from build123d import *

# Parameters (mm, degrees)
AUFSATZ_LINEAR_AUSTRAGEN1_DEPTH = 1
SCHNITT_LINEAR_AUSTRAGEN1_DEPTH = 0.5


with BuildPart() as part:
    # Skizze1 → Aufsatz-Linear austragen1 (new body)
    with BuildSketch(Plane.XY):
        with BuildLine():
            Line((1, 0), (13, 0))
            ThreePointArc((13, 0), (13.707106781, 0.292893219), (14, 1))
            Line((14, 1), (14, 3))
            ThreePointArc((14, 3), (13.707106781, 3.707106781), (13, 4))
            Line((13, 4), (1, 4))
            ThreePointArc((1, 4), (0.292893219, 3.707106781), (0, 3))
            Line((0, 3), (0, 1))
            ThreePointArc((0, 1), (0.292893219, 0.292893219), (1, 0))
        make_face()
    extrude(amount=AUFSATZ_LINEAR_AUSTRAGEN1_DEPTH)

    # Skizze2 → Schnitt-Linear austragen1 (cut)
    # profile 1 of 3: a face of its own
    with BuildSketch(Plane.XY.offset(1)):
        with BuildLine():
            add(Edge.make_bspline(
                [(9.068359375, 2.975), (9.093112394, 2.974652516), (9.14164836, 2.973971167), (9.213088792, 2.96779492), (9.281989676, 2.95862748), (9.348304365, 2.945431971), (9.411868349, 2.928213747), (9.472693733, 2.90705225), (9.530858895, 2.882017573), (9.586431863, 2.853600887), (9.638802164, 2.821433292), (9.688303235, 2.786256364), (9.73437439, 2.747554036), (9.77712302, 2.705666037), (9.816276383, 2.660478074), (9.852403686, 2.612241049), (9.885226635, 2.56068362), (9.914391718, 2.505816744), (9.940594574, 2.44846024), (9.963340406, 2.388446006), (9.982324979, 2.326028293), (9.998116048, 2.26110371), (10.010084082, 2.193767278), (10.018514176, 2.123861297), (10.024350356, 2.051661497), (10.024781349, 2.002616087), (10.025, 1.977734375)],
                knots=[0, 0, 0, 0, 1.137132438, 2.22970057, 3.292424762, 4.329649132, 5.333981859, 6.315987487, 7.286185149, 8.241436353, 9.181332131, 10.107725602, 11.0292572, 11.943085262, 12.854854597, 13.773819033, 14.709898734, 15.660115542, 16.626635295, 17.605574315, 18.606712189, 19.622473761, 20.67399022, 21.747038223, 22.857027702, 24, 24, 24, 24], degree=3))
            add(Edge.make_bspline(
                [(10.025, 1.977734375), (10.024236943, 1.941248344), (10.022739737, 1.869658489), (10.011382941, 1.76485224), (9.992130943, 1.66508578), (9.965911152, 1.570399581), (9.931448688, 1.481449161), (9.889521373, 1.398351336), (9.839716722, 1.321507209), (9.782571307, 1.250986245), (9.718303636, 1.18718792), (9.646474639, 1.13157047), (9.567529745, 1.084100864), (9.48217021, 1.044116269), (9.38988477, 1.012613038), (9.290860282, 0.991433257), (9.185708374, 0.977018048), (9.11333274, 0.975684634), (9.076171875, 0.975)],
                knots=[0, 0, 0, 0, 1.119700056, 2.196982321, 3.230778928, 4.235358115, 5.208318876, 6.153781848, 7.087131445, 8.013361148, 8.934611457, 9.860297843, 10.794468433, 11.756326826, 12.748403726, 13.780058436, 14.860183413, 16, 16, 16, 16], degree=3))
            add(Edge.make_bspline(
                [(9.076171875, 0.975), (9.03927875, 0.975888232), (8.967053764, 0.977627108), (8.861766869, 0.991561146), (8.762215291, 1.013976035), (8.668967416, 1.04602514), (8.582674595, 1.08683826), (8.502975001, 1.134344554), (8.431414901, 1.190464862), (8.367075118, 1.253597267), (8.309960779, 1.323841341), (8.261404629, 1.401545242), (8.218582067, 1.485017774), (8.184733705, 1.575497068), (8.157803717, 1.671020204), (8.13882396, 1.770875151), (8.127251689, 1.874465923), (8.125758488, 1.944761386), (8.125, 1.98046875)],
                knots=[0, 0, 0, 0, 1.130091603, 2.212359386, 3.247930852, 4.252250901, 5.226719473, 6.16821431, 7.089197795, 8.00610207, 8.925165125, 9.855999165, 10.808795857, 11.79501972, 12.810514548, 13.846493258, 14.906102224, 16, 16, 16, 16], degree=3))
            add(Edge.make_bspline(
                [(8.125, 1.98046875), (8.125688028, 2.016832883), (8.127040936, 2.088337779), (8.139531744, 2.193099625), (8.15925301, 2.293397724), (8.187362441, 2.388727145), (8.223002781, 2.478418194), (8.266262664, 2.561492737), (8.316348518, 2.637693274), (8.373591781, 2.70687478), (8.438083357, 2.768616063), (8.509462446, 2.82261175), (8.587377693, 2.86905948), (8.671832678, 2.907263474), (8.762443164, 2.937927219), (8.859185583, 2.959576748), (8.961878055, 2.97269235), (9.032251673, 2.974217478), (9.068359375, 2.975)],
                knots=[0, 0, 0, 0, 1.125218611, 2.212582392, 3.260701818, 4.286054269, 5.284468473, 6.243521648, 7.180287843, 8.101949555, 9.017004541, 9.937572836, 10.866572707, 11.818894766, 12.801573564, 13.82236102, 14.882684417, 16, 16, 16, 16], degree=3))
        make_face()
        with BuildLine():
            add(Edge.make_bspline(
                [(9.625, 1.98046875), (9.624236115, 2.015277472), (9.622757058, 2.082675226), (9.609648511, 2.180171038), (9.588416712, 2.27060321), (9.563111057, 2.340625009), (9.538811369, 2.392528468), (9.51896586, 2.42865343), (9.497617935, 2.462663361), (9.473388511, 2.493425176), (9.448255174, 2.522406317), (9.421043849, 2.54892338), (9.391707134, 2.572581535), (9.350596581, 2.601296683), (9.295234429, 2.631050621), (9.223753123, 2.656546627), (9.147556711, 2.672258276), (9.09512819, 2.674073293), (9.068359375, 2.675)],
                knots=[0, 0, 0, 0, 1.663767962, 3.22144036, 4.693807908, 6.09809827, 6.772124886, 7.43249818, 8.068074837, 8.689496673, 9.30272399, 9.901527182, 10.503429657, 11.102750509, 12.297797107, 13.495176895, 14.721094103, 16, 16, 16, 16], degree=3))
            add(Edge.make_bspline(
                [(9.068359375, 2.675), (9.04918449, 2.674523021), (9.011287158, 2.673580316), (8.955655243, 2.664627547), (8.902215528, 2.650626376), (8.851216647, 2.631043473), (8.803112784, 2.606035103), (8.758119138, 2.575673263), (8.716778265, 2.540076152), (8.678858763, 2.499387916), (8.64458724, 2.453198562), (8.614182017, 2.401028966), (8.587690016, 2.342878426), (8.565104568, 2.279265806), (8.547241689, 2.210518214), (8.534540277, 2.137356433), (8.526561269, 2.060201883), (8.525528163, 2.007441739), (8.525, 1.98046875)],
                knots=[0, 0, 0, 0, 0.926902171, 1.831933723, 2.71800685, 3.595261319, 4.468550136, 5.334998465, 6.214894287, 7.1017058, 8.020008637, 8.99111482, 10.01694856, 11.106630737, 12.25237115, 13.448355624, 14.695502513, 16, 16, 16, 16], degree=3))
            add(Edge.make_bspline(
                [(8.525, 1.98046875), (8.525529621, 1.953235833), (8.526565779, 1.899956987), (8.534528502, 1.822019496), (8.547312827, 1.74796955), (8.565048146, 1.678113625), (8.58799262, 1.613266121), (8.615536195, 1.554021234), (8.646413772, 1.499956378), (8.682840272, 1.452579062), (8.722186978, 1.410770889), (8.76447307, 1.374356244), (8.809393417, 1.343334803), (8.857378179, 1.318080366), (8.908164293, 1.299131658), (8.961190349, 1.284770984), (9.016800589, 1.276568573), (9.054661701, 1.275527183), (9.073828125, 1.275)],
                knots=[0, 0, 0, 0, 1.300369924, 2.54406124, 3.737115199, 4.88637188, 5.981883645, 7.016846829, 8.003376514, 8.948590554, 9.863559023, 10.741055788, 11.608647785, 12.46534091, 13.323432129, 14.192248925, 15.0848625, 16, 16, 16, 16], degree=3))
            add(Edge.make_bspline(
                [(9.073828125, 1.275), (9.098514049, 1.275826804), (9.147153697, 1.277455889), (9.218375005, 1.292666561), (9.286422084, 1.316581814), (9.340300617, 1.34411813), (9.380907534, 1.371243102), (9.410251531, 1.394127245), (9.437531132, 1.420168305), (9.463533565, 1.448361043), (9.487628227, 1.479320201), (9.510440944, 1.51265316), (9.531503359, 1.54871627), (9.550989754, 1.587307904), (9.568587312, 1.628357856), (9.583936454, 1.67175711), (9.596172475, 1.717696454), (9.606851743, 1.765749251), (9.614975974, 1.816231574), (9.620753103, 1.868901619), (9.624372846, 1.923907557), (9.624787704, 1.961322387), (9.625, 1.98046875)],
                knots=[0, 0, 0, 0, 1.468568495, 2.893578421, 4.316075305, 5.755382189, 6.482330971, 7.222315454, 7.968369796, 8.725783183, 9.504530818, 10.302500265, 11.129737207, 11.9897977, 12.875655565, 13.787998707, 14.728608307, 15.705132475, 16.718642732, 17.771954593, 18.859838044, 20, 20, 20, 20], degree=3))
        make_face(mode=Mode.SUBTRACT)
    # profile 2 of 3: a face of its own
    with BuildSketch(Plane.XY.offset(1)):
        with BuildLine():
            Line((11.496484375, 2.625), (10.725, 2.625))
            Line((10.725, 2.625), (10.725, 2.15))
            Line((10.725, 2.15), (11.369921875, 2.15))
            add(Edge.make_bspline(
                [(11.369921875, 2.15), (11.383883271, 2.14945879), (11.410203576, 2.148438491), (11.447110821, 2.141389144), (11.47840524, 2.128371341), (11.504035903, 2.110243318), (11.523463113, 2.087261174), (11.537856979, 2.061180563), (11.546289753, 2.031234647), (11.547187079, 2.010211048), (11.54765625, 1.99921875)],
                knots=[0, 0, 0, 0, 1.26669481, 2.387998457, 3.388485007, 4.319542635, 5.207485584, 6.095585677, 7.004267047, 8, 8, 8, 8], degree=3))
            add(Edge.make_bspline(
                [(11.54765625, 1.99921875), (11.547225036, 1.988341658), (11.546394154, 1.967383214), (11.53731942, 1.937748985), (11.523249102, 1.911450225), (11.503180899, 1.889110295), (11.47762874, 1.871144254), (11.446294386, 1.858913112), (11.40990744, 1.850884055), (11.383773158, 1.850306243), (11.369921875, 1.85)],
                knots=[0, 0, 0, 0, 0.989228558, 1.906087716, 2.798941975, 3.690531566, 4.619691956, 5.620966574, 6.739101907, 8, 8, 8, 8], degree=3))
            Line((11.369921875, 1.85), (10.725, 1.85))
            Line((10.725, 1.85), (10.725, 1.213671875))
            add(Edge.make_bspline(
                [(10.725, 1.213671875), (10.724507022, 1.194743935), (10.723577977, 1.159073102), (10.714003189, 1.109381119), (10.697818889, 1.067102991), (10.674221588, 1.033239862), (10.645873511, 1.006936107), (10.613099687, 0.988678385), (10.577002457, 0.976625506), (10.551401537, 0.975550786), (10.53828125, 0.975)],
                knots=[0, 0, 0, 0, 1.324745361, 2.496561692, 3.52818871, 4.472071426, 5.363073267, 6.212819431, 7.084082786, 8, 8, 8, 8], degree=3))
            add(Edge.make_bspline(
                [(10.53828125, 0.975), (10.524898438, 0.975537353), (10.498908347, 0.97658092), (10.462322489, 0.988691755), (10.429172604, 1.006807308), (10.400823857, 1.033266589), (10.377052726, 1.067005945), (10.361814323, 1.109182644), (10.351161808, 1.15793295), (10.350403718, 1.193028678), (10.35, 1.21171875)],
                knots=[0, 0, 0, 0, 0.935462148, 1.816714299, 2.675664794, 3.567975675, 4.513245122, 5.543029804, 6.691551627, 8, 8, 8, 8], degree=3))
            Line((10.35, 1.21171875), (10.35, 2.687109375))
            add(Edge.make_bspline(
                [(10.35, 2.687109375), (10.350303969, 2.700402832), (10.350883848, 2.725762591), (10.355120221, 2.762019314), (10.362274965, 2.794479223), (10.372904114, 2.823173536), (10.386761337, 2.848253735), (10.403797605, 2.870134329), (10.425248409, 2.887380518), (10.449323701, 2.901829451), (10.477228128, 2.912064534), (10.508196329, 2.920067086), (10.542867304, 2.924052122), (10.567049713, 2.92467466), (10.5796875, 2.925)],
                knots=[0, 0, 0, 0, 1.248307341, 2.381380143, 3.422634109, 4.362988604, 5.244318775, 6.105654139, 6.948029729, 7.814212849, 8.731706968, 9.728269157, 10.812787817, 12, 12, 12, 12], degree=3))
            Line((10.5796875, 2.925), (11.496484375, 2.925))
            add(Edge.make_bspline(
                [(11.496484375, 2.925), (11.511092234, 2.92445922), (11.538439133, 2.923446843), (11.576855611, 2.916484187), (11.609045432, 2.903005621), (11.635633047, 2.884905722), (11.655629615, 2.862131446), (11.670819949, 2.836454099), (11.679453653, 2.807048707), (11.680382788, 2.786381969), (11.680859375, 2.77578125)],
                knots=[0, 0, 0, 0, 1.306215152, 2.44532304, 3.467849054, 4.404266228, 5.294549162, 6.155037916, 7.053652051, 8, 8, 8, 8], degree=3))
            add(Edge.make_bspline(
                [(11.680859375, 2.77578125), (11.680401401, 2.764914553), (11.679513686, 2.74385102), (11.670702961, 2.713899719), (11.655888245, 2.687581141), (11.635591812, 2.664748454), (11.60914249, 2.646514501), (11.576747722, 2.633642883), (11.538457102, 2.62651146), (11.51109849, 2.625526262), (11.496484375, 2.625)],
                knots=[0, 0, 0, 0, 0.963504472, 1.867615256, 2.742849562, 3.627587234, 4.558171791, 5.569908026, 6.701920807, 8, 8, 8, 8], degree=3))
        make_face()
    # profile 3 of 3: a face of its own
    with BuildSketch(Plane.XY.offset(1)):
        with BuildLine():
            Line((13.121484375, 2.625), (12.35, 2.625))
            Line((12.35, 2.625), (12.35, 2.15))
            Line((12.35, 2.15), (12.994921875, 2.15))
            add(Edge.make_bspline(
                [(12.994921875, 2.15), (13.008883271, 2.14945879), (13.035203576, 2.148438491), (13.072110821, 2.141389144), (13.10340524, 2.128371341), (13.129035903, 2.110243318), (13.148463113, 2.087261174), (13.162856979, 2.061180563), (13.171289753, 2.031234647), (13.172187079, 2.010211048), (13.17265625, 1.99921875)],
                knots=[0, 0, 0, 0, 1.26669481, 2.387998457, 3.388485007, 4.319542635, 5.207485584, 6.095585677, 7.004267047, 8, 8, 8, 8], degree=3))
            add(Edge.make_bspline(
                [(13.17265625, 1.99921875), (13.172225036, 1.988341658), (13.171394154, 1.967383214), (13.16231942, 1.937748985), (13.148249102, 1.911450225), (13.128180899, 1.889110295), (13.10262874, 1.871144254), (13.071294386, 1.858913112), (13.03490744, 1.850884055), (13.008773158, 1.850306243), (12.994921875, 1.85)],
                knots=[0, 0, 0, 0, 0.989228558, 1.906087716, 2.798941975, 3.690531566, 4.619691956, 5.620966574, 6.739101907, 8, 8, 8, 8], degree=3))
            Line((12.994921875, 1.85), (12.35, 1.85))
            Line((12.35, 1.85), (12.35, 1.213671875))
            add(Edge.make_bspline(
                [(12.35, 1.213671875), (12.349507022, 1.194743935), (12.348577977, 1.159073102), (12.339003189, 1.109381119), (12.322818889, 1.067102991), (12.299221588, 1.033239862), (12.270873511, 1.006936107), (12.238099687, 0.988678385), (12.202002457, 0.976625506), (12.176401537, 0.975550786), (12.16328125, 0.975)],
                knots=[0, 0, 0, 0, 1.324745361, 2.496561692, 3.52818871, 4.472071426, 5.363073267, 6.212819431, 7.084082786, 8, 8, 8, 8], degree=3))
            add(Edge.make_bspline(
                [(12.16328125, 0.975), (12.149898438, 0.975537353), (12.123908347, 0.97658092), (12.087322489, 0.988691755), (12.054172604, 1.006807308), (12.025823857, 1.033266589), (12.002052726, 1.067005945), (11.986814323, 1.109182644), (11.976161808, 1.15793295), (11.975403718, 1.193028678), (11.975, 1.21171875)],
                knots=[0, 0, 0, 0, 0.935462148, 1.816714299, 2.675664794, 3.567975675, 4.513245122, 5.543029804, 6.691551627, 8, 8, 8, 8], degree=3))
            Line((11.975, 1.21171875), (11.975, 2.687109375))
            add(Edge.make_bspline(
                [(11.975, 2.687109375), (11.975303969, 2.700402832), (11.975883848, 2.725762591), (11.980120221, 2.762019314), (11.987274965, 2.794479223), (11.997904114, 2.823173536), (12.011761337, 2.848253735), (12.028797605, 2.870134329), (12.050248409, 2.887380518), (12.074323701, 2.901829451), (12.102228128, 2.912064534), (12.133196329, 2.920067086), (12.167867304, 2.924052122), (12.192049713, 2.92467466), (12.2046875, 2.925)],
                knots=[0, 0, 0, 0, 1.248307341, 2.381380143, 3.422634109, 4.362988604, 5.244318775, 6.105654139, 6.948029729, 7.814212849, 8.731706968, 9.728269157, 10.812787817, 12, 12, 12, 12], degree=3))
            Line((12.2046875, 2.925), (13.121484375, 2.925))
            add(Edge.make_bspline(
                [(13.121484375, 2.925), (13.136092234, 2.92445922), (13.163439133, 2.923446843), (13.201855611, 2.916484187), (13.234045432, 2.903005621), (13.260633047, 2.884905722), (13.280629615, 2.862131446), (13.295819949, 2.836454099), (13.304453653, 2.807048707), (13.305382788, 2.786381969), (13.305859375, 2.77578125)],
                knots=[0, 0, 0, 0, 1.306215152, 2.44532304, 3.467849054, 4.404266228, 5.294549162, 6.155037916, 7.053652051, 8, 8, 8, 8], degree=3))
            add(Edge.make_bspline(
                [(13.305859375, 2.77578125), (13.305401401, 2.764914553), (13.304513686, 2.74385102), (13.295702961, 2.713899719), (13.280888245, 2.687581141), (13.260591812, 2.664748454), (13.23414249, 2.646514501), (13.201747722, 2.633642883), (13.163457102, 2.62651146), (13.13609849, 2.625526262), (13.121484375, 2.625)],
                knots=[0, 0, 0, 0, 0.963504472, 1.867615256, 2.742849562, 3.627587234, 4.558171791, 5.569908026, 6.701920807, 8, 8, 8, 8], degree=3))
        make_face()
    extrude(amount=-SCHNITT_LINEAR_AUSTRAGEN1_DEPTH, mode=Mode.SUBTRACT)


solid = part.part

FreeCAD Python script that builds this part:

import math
import FreeCAD as App
import Part
import Sketcher
from FreeCAD import Vector

doc = App.newDocument("Part")
params = doc.addObject("Spreadsheet::Sheet", "Params")
for row, (alias, value) in enumerate([
    ("sketch1_radius", "1 mm"),
    ("sketch1_width", "12 mm"),
    ("sketch1_height", "2 mm"),
    ("pad1_length", "1 mm"),
    ("pocket1_length", "0.5 mm"),
], start=1):
    params.set(f"A{row}", alias)
    params.set(f"B{row}", "=" + value)
    params.setAlias(f"B{row}", alias)

body = doc.addObject("PartDesign::Body", "Body")

sketch1 = body.newObject("Sketcher::SketchObject", "Sketch")
sketch1.AttachmentSupport = (doc.getObject("XY_Plane"), [""])
sketch1.MapMode = "FlatFace"
sketch1.addGeometry(Part.LineSegment(Vector(1, 0, 0), Vector(13, 0, 0)), False)
sketch1.addGeometry(Part.ArcOfCircle(Part.Circle(Vector(13, 1, 0), Vector(0, 0, 1), 1), math.radians(-90), math.radians(0)), False)
sketch1.addGeometry(Part.LineSegment(Vector(14, 1, 0), Vector(14, 3, 0)), False)
sketch1.addGeometry(Part.ArcOfCircle(Part.Circle(Vector(13, 3, 0), Vector(0, 0, 1), 1), math.radians(0), math.radians(90)), False)
sketch1.addGeometry(Part.LineSegment(Vector(13, 4, 0), Vector(1, 4, 0)), False)
sketch1.addGeometry(Part.ArcOfCircle(Part.Circle(Vector(1, 3, 0), Vector(0, 0, 1), 1), math.radians(90), math.radians(180)), False)
sketch1.addGeometry(Part.LineSegment(Vector(0, 3, 0), Vector(0, 1, 0)), False)
sketch1.addGeometry(Part.ArcOfCircle(Part.Circle(Vector(1, 1, 0), Vector(0, 0, 1), 1), math.radians(-180), math.radians(-90)), False)
sketch1.addConstraint(Sketcher.Constraint("Tangent", 0, 2, 1, 1))
sketch1.addConstraint(Sketcher.Constraint("Tangent", 1, 2, 2, 1))
sketch1.addConstraint(Sketcher.Constraint("Tangent", 2, 2, 3, 1))
sketch1.addConstraint(Sketcher.Constraint("Tangent", 3, 2, 4, 1))
sketch1.addConstraint(Sketcher.Constraint("Tangent", 4, 2, 5, 1))
sketch1.addConstraint(Sketcher.Constraint("Tangent", 5, 2, 6, 1))
sketch1.addConstraint(Sketcher.Constraint("Tangent", 6, 2, 7, 1))
sketch1.addConstraint(Sketcher.Constraint("Tangent", 7, 2, 0, 1))
sketch1.addConstraint(Sketcher.Constraint("Horizontal", 0))
sketch1.addConstraint(Sketcher.Constraint("Vertical", 2))
sketch1.addConstraint(Sketcher.Constraint("Horizontal", 4))
sketch1.addConstraint(Sketcher.Constraint("Vertical", 6))
sketch1.addConstraint(Sketcher.Constraint("Equal", 1, 3))
sketch1.addConstraint(Sketcher.Constraint("Equal", 3, 5))
sketch1.addConstraint(Sketcher.Constraint("Equal", 5, 7))
sketch1.addConstraint(Sketcher.Constraint("PointOnObject", 0, 2, -1))
sketch1.addConstraint(Sketcher.Constraint("PointOnObject", 5, 2, -2))
sketch1.addConstraint(Sketcher.Constraint("Radius", 1, 1.0))
sketch1.addConstraint(Sketcher.Constraint("DistanceX", 0, 1, 0, 2, 12.0))
sketch1.addConstraint(Sketcher.Constraint("DistanceY", 2, 1, 2, 2, 2.0))
sketch1.setExpression("Constraints[17]", "Params.sketch1_radius")
sketch1.setExpression("Constraints[18]", "Params.sketch1_width")
sketch1.setExpression("Constraints[19]", "Params.sketch1_height")
pad1 = body.newObject("PartDesign::Pad", "Pad")
pad1.Profile = sketch1
pad1.setExpression("Length", "Params.pad1_length")

sketch2 = body.newObject("Sketcher::SketchObject", "Sketch001")
sketch2.AttachmentSupport = (doc.getObject("XY_Plane"), [""])
sketch2.MapMode = "FlatFace"
sketch2.AttachmentOffset = App.Placement(Vector(0, 0, 1), App.Rotation())
sketch2.addGeometry(Part.BSplineCurve([Vector(9.068359, 2.975, 0), Vector(9.093112, 2.974653, 0), Vector(9.141648, 2.973971, 0), Vector(9.213089, 2.967795, 0), Vector(9.28199, 2.958627, 0), Vector(9.348304, 2.945432, 0), Vector(9.411868, 2.928214, 0), Vector(9.472694, 2.907052, 0), Vector(9.530859, 2.882018, 0), Vector(9.586432, 2.853601, 0), Vector(9.638802, 2.821433, 0), Vector(9.688303, 2.786256, 0), Vector(9.734374, 2.747554, 0), Vector(9.777123, 2.705666, 0), Vector(9.816276, 2.660478, 0), Vector(9.852404, 2.612241, 0), Vector(9.885227, 2.560684, 0), Vector(9.914392, 2.505817, 0), Vector(9.940595, 2.44846, 0), Vector(9.96334, 2.388446, 0), Vector(9.982325, 2.326028, 0), Vector(9.998116, 2.261104, 0), Vector(10.010084, 2.193767, 0), Vector(10.018514, 2.123861, 0), Vector(10.02435, 2.051661, 0), Vector(10.024781, 2.002616, 0), Vector(10.025, 1.977734, 0)], [4, 1, 1, 1, 1, 1, 1, 1, 1, 1, 1, 1, 1, 1, 1, 1, 1, 1, 1, 1, 1, 1, 1, 1, 4], [0, 1.137132438, 2.22970057, 3.292424762, 4.329649132, 5.333981859, 6.315987487, 7.286185149, 8.241436353, 9.181332131, 10.107725602, 11.0292572, 11.943085262, 12.854854597, 13.773819033, 14.709898734, 15.660115542, 16.626635295, 17.605574315, 18.606712189, 19.622473761, 20.67399022, 21.747038223, 22.857027702, 24], False, 3, [1, 1, 1, 1, 1, 1, 1, 1, 1, 1, 1, 1, 1, 1, 1, 1, 1, 1, 1, 1, 1, 1, 1, 1, 1, 1, 1], False), False)
sketch2.addGeometry(Part.BSplineCurve([Vector(8.125, 1.980469, 0), Vector(8.125688, 2.016833, 0), Vector(8.127041, 2.088338, 0), Vector(8.139532, 2.1931, 0), Vector(8.159253, 2.293398, 0), Vector(8.187362, 2.388727, 0), Vector(8.223003, 2.478418, 0), Vector(8.266263, 2.561493, 0), Vector(8.316349, 2.637693, 0), Vector(8.373592, 2.706875, 0), Vector(8.438083, 2.768616, 0), Vector(8.509462, 2.822612, 0), Vector(8.587378, 2.869059, 0), Vector(8.671833, 2.907263, 0), Vector(8.762443, 2.937927, 0), Vector(8.859186, 2.959577, 0), Vector(8.961878, 2.972692, 0), Vector(9.032252, 2.974217, 0), Vector(9.068359, 2.975, 0)], [4, 1, 1, 1, 1, 1, 1, 1, 1, 1, 1, 1, 1, 1, 1, 1, 4], [0, 1.125218611, 2.212582392, 3.260701818, 4.286054269, 5.284468473, 6.243521648, 7.180287843, 8.101949555, 9.017004541, 9.937572836, 10.866572707, 11.818894766, 12.801573564, 13.82236102, 14.882684417, 16], False, 3, [1, 1, 1, 1, 1, 1, 1, 1, 1, 1, 1, 1, 1, 1, 1, 1, 1, 1, 1], False), False)
sketch2.addGeometry(Part.BSplineCurve([Vector(9.076172, 0.975, 0), Vector(9.039279, 0.975888, 0), Vector(8.967054, 0.977627, 0), Vector(8.861767, 0.991561, 0), Vector(8.762215, 1.013976, 0), Vector(8.668967, 1.046025, 0), Vector(8.582675, 1.086838, 0), Vector(8.502975, 1.134345, 0), Vector(8.431415, 1.190465, 0), Vector(8.367075, 1.253597, 0), Vector(8.309961, 1.323841, 0), Vector(8.261405, 1.401545, 0), Vector(8.218582, 1.485018, 0), Vector(8.184734, 1.575497, 0), Vector(8.157804, 1.67102, 0), Vector(8.138824, 1.770875, 0), Vector(8.127252, 1.874466, 0), Vector(8.125758, 1.944761, 0), Vector(8.125, 1.980469, 0)], [4, 1, 1, 1, 1, 1, 1, 1, 1, 1, 1, 1, 1, 1, 1, 1, 4], [0, 1.130091603, 2.212359386, 3.247930852, 4.252250901, 5.226719473, 6.16821431, 7.089197795, 8.00610207, 8.925165125, 9.855999165, 10.808795857, 11.79501972, 12.810514548, 13.846493258, 14.906102224, 16], False, 3, [1, 1, 1, 1, 1, 1, 1, 1, 1, 1, 1, 1, 1, 1, 1, 1, 1, 1, 1], False), False)
sketch2.addGeometry(Part.BSplineCurve([Vector(10.025, 1.977734, 0), Vector(10.024237, 1.941248, 0), Vector(10.02274, 1.869658, 0), Vector(10.011383, 1.764852, 0), Vector(9.992131, 1.665086, 0), Vector(9.965911, 1.5704, 0), Vector(9.931449, 1.481449, 0), Vector(9.889521, 1.398351, 0), Vector(9.839717, 1.321507, 0), Vector(9.782571, 1.250986, 0), Vector(9.718304, 1.187188, 0), Vector(9.646475, 1.13157, 0), Vector(9.56753, 1.084101, 0), Vector(9.48217, 1.044116, 0), Vector(9.389885, 1.012613, 0), Vector(9.29086, 0.991433, 0), Vector(9.185708, 0.977018, 0), Vector(9.113333, 0.975685, 0), Vector(9.076172, 0.975, 0)], [4, 1, 1, 1, 1, 1, 1, 1, 1, 1, 1, 1, 1, 1, 1, 1, 4], [0, 1.119700056, 2.196982321, 3.230778928, 4.235358115, 5.208318876, 6.153781848, 7.087131445, 8.013361148, 8.934611457, 9.860297843, 10.794468433, 11.756326826, 12.748403726, 13.780058436, 14.860183413, 16], False, 3, [1, 1, 1, 1, 1, 1, 1, 1, 1, 1, 1, 1, 1, 1, 1, 1, 1, 1, 1], False), False)
sketch2.addGeometry(Part.BSplineCurve([Vector(9.073828, 1.275, 0), Vector(9.098514, 1.275827, 0), Vector(9.147154, 1.277456, 0), Vector(9.218375, 1.292667, 0), Vector(9.286422, 1.316582, 0), Vector(9.340301, 1.344118, 0), Vector(9.380908, 1.371243, 0), Vector(9.410252, 1.394127, 0), Vector(9.437531, 1.420168, 0), Vector(9.463534, 1.448361, 0), Vector(9.487628, 1.47932, 0), Vector(9.510441, 1.512653, 0), Vector(9.531503, 1.548716, 0), Vector(9.55099, 1.587308, 0), Vector(9.568587, 1.628358, 0), Vector(9.583936, 1.671757, 0), Vector(9.596172, 1.717696, 0), Vector(9.606852, 1.765749, 0), Vector(9.614976, 1.816232, 0), Vector(9.620753, 1.868902, 0), Vector(9.624373, 1.923908, 0), Vector(9.624788, 1.961322, 0), Vector(9.625, 1.980469, 0)], [4, 1, 1, 1, 1, 1, 1, 1, 1, 1, 1, 1, 1, 1, 1, 1, 1, 1, 1, 1, 4], [0, 1.468568495, 2.893578421, 4.316075305, 5.755382189, 6.482330971, 7.222315454, 7.968369796, 8.725783183, 9.504530818, 10.302500265, 11.129737207, 11.9897977, 12.875655565, 13.787998707, 14.728608307, 15.705132475, 16.718642732, 17.771954593, 18.859838044, 20], False, 3, [1, 1, 1, 1, 1, 1, 1, 1, 1, 1, 1, 1, 1, 1, 1, 1, 1, 1, 1, 1, 1, 1, 1], False), False)
sketch2.addGeometry(Part.BSplineCurve([Vector(8.525, 1.980469, 0), Vector(8.52553, 1.953236, 0), Vector(8.526566, 1.899957, 0), Vector(8.534529, 1.822019, 0), Vector(8.547313, 1.74797, 0), Vector(8.565048, 1.678114, 0), Vector(8.587993, 1.613266, 0), Vector(8.615536, 1.554021, 0), Vector(8.646414, 1.499956, 0), Vector(8.68284, 1.452579, 0), Vector(8.722187, 1.410771, 0), Vector(8.764473, 1.374356, 0), Vector(8.809393, 1.343335, 0), Vector(8.857378, 1.31808, 0), Vector(8.908164, 1.299132, 0), Vector(8.96119, 1.284771, 0), Vector(9.016801, 1.276569, 0), Vector(9.054662, 1.275527, 0), Vector(9.073828, 1.275, 0)], [4, 1, 1, 1, 1, 1, 1, 1, 1, 1, 1, 1, 1, 1, 1, 1, 4], [0, 1.300369924, 2.54406124, 3.737115199, 4.88637188, 5.981883645, 7.016846829, 8.003376514, 8.948590554, 9.863559023, 10.741055788, 11.608647785, 12.46534091, 13.323432129, 14.192248925, 15.0848625, 16], False, 3, [1, 1, 1, 1, 1, 1, 1, 1, 1, 1, 1, 1, 1, 1, 1, 1, 1, 1, 1], False), False)
sketch2.addGeometry(Part.BSplineCurve([Vector(9.068359, 2.675, 0), Vector(9.049184, 2.674523, 0), Vector(9.011287, 2.67358, 0), Vector(8.955655, 2.664628, 0), Vector(8.902216, 2.650626, 0), Vector(8.851217, 2.631043, 0), Vector(8.803113, 2.606035, 0), Vector(8.758119, 2.575673, 0), Vector(8.716778, 2.540076, 0), Vector(8.678859, 2.499388, 0), Vector(8.644587, 2.453199, 0), Vector(8.614182, 2.401029, 0), Vector(8.58769, 2.342878, 0), Vector(8.565105, 2.279266, 0), Vector(8.547242, 2.210518, 0), Vector(8.53454, 2.137356, 0), Vector(8.526561, 2.060202, 0), Vector(8.525528, 2.007442, 0), Vector(8.525, 1.980469, 0)], [4, 1, 1, 1, 1, 1, 1, 1, 1, 1, 1, 1, 1, 1, 1, 1, 4], [0, 0.926902171, 1.831933723, 2.71800685, 3.595261319, 4.468550136, 5.334998465, 6.214894287, 7.1017058, 8.020008637, 8.99111482, 10.01694856, 11.106630737, 12.25237115, 13.448355624, 14.695502513, 16], False, 3, [1, 1, 1, 1, 1, 1, 1, 1, 1, 1, 1, 1, 1, 1, 1, 1, 1, 1, 1], False), False)
sketch2.addGeometry(Part.BSplineCurve([Vector(9.625, 1.980469, 0), Vector(9.624236, 2.015277, 0), Vector(9.622757, 2.082675, 0), Vector(9.609649, 2.180171, 0), Vector(9.588417, 2.270603, 0), Vector(9.563111, 2.340625, 0), Vector(9.538811, 2.392528, 0), Vector(9.518966, 2.428653, 0), Vector(9.497618, 2.462663, 0), Vector(9.473389, 2.493425, 0), Vector(9.448255, 2.522406, 0), Vector(9.421044, 2.548923, 0), Vector(9.391707, 2.572582, 0), Vector(9.350597, 2.601297, 0), Vector(9.295234, 2.631051, 0), Vector(9.223753, 2.656547, 0), Vector(9.147557, 2.672258, 0), Vector(9.095128, 2.674073, 0), Vector(9.068359, 2.675, 0)], [4, 1, 1, 1, 1, 1, 1, 1, 1, 1, 1, 1, 1, 1, 1, 1, 4], [0, 1.663767962, 3.22144036, 4.693807908, 6.09809827, 6.772124886, 7.43249818, 8.068074837, 8.689496673, 9.30272399, 9.901527182, 10.503429657, 11.102750509, 12.297797107, 13.495176895, 14.721094103, 16], False, 3, [1, 1, 1, 1, 1, 1, 1, 1, 1, 1, 1, 1, 1, 1, 1, 1, 1, 1, 1], False), False)
sketch2.addGeometry(Part.LineSegment(Vector(10.725, 2.625, 0), Vector(11.496484, 2.625, 0)), False)
sketch2.addGeometry(Part.BSplineCurve([Vector(11.680859, 2.775781, 0), Vector(11.680401, 2.764915, 0), Vector(11.679514, 2.743851, 0), Vector(11.670703, 2.7139, 0), Vector(11.655888, 2.687581, 0), Vector(11.635592, 2.664748, 0), Vector(11.609142, 2.646515, 0), Vector(11.576748, 2.633643, 0), Vector(11.538457, 2.626511, 0), Vector(11.511098, 2.625526, 0), Vector(11.496484, 2.625, 0)], [4, 1, 1, 1, 1, 1, 1, 1, 4], [0, 0.963504472, 1.867615256, 2.742849562, 3.627587234, 4.558171791, 5.569908026, 6.701920807, 8], False, 3, [1, 1, 1, 1, 1, 1, 1, 1, 1, 1, 1], False), False)
sketch2.addGeometry(Part.BSplineCurve([Vector(11.496484, 2.925, 0), Vector(11.511092, 2.924459, 0), Vector(11.538439, 2.923447, 0), Vector(11.576856, 2.916484, 0), Vector(11.609045, 2.903006, 0), Vector(11.635633, 2.884906, 0), Vector(11.65563, 2.862131, 0), Vector(11.67082, 2.836454, 0), Vector(11.679454, 2.807049, 0), Vector(11.680383, 2.786382, 0), Vector(11.680859, 2.775781, 0)], [4, 1, 1, 1, 1, 1, 1, 1, 4], [0, 1.306215152, 2.44532304, 3.467849054, 4.404266228, 5.294549162, 6.155037916, 7.053652051, 8], False, 3, [1, 1, 1, 1, 1, 1, 1, 1, 1, 1, 1], False), False)
sketch2.addGeometry(Part.LineSegment(Vector(11.496484, 2.925, 0), Vector(10.579688, 2.925, 0)), False)
sketch2.addGeometry(Part.BSplineCurve([Vector(10.35, 2.687109, 0), Vector(10.350304, 2.700403, 0), Vector(10.350884, 2.725763, 0), Vector(10.35512, 2.762019, 0), Vector(10.362275, 2.794479, 0), Vector(10.372904, 2.823174, 0), Vector(10.386761, 2.848254, 0), Vector(10.403798, 2.870134, 0), Vector(10.425248, 2.887381, 0), Vector(10.449324, 2.901829, 0), Vector(10.477228, 2.912065, 0), Vector(10.508196, 2.920067, 0), Vector(10.542867, 2.924052, 0), Vector(10.56705, 2.924675, 0), Vector(10.579688, 2.925, 0)], [4, 1, 1, 1, 1, 1, 1, 1, 1, 1, 1, 1, 4], [0, 1.248307341, 2.381380143, 3.422634109, 4.362988604, 5.244318775, 6.105654139, 6.948029729, 7.814212849, 8.731706968, 9.728269157, 10.812787817, 12], False, 3, [1, 1, 1, 1, 1, 1, 1, 1, 1, 1, 1, 1, 1, 1, 1], False), False)
sketch2.addGeometry(Part.LineSegment(Vector(10.35, 2.687109, 0), Vector(10.35, 1.211719, 0)), False)
sketch2.addGeometry(Part.BSplineCurve([Vector(10.538281, 0.975, 0), Vector(10.524898, 0.975537, 0), Vector(10.498908, 0.976581, 0), Vector(10.462322, 0.988692, 0), Vector(10.429173, 1.006807, 0), Vector(10.400824, 1.033267, 0), Vector(10.377053, 1.067006, 0), Vector(10.361814, 1.109183, 0), Vector(10.351162, 1.157933, 0), Vector(10.350404, 1.193029, 0), Vector(10.35, 1.211719, 0)], [4, 1, 1, 1, 1, 1, 1, 1, 4], [0, 0.935462148, 1.816714299, 2.675664794, 3.567975675, 4.513245122, 5.543029804, 6.691551627, 8], False, 3, [1, 1, 1, 1, 1, 1, 1, 1, 1, 1, 1], False), False)
sketch2.addGeometry(Part.BSplineCurve([Vector(10.725, 1.213672, 0), Vector(10.724507, 1.194744, 0), Vector(10.723578, 1.159073, 0), Vector(10.714003, 1.109381, 0), Vector(10.697819, 1.067103, 0), Vector(10.674222, 1.03324, 0), Vector(10.645874, 1.006936, 0), Vector(10.6131, 0.988678, 0), Vector(10.577002, 0.976626, 0), Vector(10.551402, 0.975551, 0), Vector(10.538281, 0.975, 0)], [4, 1, 1, 1, 1, 1, 1, 1, 4], [0, 1.324745361, 2.496561692, 3.52818871, 4.472071426, 5.363073267, 6.212819431, 7.084082786, 8], False, 3, [1, 1, 1, 1, 1, 1, 1, 1, 1, 1, 1], False), False)
sketch2.addGeometry(Part.LineSegment(Vector(10.725, 1.213672, 0), Vector(10.725, 1.85, 0)), False)
sketch2.addGeometry(Part.LineSegment(Vector(10.725, 1.85, 0), Vector(11.369922, 1.85, 0)), False)
sketch2.addGeometry(Part.BSplineCurve([Vector(11.547656, 1.999219, 0), Vector(11.547225, 1.988342, 0), Vector(11.546394, 1.967383, 0), Vector(11.537319, 1.937749, 0), Vector(11.523249, 1.91145, 0), Vector(11.503181, 1.88911, 0), Vector(11.477629, 1.871144, 0), Vector(11.446294, 1.858913, 0), Vector(11.409907, 1.850884, 0), Vector(11.383773, 1.850306, 0), Vector(11.369922, 1.85, 0)], [4, 1, 1, 1, 1, 1, 1, 1, 4], [0, 0.989228558, 1.906087716, 2.798941975, 3.690531566, 4.619691956, 5.620966574, 6.739101907, 8], False, 3, [1, 1, 1, 1, 1, 1, 1, 1, 1, 1, 1], False), False)
sketch2.addGeometry(Part.BSplineCurve([Vector(11.369922, 2.15, 0), Vector(11.383883, 2.149459, 0), Vector(11.410204, 2.148438, 0), Vector(11.447111, 2.141389, 0), Vector(11.478405, 2.128371, 0), Vector(11.504036, 2.110243, 0), Vector(11.523463, 2.087261, 0), Vector(11.537857, 2.061181, 0), Vector(11.54629, 2.031235, 0), Vector(11.547187, 2.010211, 0), Vector(11.547656, 1.999219, 0)], [4, 1, 1, 1, 1, 1, 1, 1, 4], [0, 1.26669481, 2.387998457, 3.388485007, 4.319542635, 5.207485584, 6.095585677, 7.004267047, 8], False, 3, [1, 1, 1, 1, 1, 1, 1, 1, 1, 1, 1], False), False)
sketch2.addGeometry(Part.LineSegment(Vector(11.369922, 2.15, 0), Vector(10.725, 2.15, 0)), False)
sketch2.addGeometry(Part.LineSegment(Vector(10.725, 2.15, 0), Vector(10.725, 2.625, 0)), False)
sketch2.addGeometry(Part.LineSegment(Vector(12.35, 2.625, 0), Vector(13.121484, 2.625, 0)), False)
sketch2.addGeometry(Part.BSplineCurve([Vector(13.305859, 2.775781, 0), Vector(13.305401, 2.764915, 0), Vector(13.304514, 2.743851, 0), Vector(13.295703, 2.7139, 0), Vector(13.280888, 2.687581, 0), Vector(13.260592, 2.664748, 0), Vector(13.234142, 2.646515, 0), Vector(13.201748, 2.633643, 0), Vector(13.163457, 2.626511, 0), Vector(13.136098, 2.625526, 0), Vector(13.121484, 2.625, 0)], [4, 1, 1, 1, 1, 1, 1, 1, 4], [0, 0.963504472, 1.867615256, 2.742849562, 3.627587234, 4.558171791, 5.569908026, 6.701920807, 8], False, 3, [1, 1, 1, 1, 1, 1, 1, 1, 1, 1, 1], False), False)
sketch2.addGeometry(Part.BSplineCurve([Vector(13.121484, 2.925, 0), Vector(13.136092, 2.924459, 0), Vector(13.163439, 2.923447, 0), Vector(13.201856, 2.916484, 0), Vector(13.234045, 2.903006, 0), Vector(13.260633, 2.884906, 0), Vector(13.28063, 2.862131, 0), Vector(13.29582, 2.836454, 0), Vector(13.304454, 2.807049, 0), Vector(13.305383, 2.786382, 0), Vector(13.305859, 2.775781, 0)], [4, 1, 1, 1, 1, 1, 1, 1, 4], [0, 1.306215152, 2.44532304, 3.467849054, 4.404266228, 5.294549162, 6.155037916, 7.053652051, 8], False, 3, [1, 1, 1, 1, 1, 1, 1, 1, 1, 1, 1], False), False)
sketch2.addGeometry(Part.LineSegment(Vector(13.121484, 2.925, 0), Vector(12.204688, 2.925, 0)), False)
sketch2.addGeometry(Part.BSplineCurve([Vector(11.975, 2.687109, 0), Vector(11.975304, 2.700403, 0), Vector(11.975884, 2.725763, 0), Vector(11.98012, 2.762019, 0), Vector(11.987275, 2.794479, 0), Vector(11.997904, 2.823174, 0), Vector(12.011761, 2.848254, 0), Vector(12.028798, 2.870134, 0), Vector(12.050248, 2.887381, 0), Vector(12.074324, 2.901829, 0), Vector(12.102228, 2.912065, 0), Vector(12.133196, 2.920067, 0), Vector(12.167867, 2.924052, 0), Vector(12.19205, 2.924675, 0), Vector(12.204688, 2.925, 0)], [4, 1, 1, 1, 1, 1, 1, 1, 1, 1, 1, 1, 4], [0, 1.248307341, 2.381380143, 3.422634109, 4.362988604, 5.244318775, 6.105654139, 6.948029729, 7.814212849, 8.731706968, 9.728269157, 10.812787817, 12], False, 3, [1, 1, 1, 1, 1, 1, 1, 1, 1, 1, 1, 1, 1, 1, 1], False), False)
sketch2.addGeometry(Part.LineSegment(Vector(11.975, 2.687109, 0), Vector(11.975, 1.211719, 0)), False)
sketch2.addGeometry(Part.BSplineCurve([Vector(12.163281, 0.975, 0), Vector(12.149898, 0.975537, 0), Vector(12.123908, 0.976581, 0), Vector(12.087322, 0.988692, 0), Vector(12.054173, 1.006807, 0), Vector(12.025824, 1.033267, 0), Vector(12.002053, 1.067006, 0), Vector(11.986814, 1.109183, 0), Vector(11.976162, 1.157933, 0), Vector(11.975404, 1.193029, 0), Vector(11.975, 1.211719, 0)], [4, 1, 1, 1, 1, 1, 1, 1, 4], [0, 0.935462148, 1.816714299, 2.675664794, 3.567975675, 4.513245122, 5.543029804, 6.691551627, 8], False, 3, [1, 1, 1, 1, 1, 1, 1, 1, 1, 1, 1], False), False)
sketch2.addGeometry(Part.BSplineCurve([Vector(12.35, 1.213672, 0), Vector(12.349507, 1.194744, 0), Vector(12.348578, 1.159073, 0), Vector(12.339003, 1.109381, 0), Vector(12.322819, 1.067103, 0), Vector(12.299222, 1.03324, 0), Vector(12.270874, 1.006936, 0), Vector(12.2381, 0.988678, 0), Vector(12.202002, 0.976626, 0), Vector(12.176402, 0.975551, 0), Vector(12.163281, 0.975, 0)], [4, 1, 1, 1, 1, 1, 1, 1, 4], [0, 1.324745361, 2.496561692, 3.52818871, 4.472071426, 5.363073267, 6.212819431, 7.084082786, 8], False, 3, [1, 1, 1, 1, 1, 1, 1, 1, 1, 1, 1], False), False)
sketch2.addGeometry(Part.LineSegment(Vector(12.35, 1.213672, 0), Vector(12.35, 1.85, 0)), False)
sketch2.addGeometry(Part.LineSegment(Vector(12.35, 1.85, 0), Vector(12.994922, 1.85, 0)), False)
sketch2.addGeometry(Part.BSplineCurve([Vector(13.172656, 1.999219, 0), Vector(13.172225, 1.988342, 0), Vector(13.171394, 1.967383, 0), Vector(13.162319, 1.937749, 0), Vector(13.148249, 1.91145, 0), Vector(13.128181, 1.88911, 0), Vector(13.102629, 1.871144, 0), Vector(13.071294, 1.858913, 0), Vector(13.034907, 1.850884, 0), Vector(13.008773, 1.850306, 0), Vector(12.994922, 1.85, 0)], [4, 1, 1, 1, 1, 1, 1, 1, 4], [0, 0.989228558, 1.906087716, 2.798941975, 3.690531566, 4.619691956, 5.620966574, 6.739101907, 8], False, 3, [1, 1, 1, 1, 1, 1, 1, 1, 1, 1, 1], False), False)
sketch2.addGeometry(Part.BSplineCurve([Vector(12.994922, 2.15, 0), Vector(13.008883, 2.149459, 0), Vector(13.035204, 2.148438, 0), Vector(13.072111, 2.141389, 0), Vector(13.103405, 2.128371, 0), Vector(13.129036, 2.110243, 0), Vector(13.148463, 2.087261, 0), Vector(13.162857, 2.061181, 0), Vector(13.17129, 2.031235, 0), Vector(13.172187, 2.010211, 0), Vector(13.172656, 1.999219, 0)], [4, 1, 1, 1, 1, 1, 1, 1, 4], [0, 1.26669481, 2.387998457, 3.388485007, 4.319542635, 5.207485584, 6.095585677, 7.004267047, 8], False, 3, [1, 1, 1, 1, 1, 1, 1, 1, 1, 1, 1], False), False)
sketch2.addGeometry(Part.LineSegment(Vector(12.994922, 2.15, 0), Vector(12.35, 2.15, 0)), False)
sketch2.addGeometry(Part.LineSegment(Vector(12.35, 2.15, 0), Vector(12.35, 2.625, 0)), False)
sketch2.addConstraint(Sketcher.Constraint("Block", 0))
sketch2.addConstraint(Sketcher.Constraint("Block", 1))
sketch2.addConstraint(Sketcher.Constraint("Block", 2))
sketch2.addConstraint(Sketcher.Constraint("Block", 3))
sketch2.addConstraint(Sketcher.Constraint("Block", 4))
sketch2.addConstraint(Sketcher.Constraint("Block", 5))
sketch2.addConstraint(Sketcher.Constraint("Block", 6))
sketch2.addConstraint(Sketcher.Constraint("Block", 7))
sketch2.addConstraint(Sketcher.Constraint("Block", 9))
sketch2.addConstraint(Sketcher.Constraint("Block", 10))
sketch2.addConstraint(Sketcher.Constraint("Block", 12))
sketch2.addConstraint(Sketcher.Constraint("Block", 14))
sketch2.addConstraint(Sketcher.Constraint("Block", 15))
sketch2.addConstraint(Sketcher.Constraint("Block", 18))
sketch2.addConstraint(Sketcher.Constraint("Block", 19))
sketch2.addConstraint(Sketcher.Constraint("Block", 23))
sketch2.addConstraint(Sketcher.Constraint("Block", 24))
sketch2.addConstraint(Sketcher.Constraint("Block", 26))
sketch2.addConstraint(Sketcher.Constraint("Block", 28))
sketch2.addConstraint(Sketcher.Constraint("Block", 29))
sketch2.addConstraint(Sketcher.Constraint("Block", 32))
sketch2.addConstraint(Sketcher.Constraint("Block", 33))
sketch2.addConstraint(Sketcher.Constraint("Coincident", 8, 2, 9, 2))
sketch2.addConstraint(Sketcher.Constraint("Coincident", 10, 1, 11, 1))
sketch2.addConstraint(Sketcher.Constraint("Coincident", 11, 2, 12, 2))
sketch2.addConstraint(Sketcher.Constraint("Coincident", 12, 1, 13, 1))
sketch2.addConstraint(Sketcher.Constraint("Coincident", 13, 2, 14, 2))
sketch2.addConstraint(Sketcher.Constraint("Coincident", 15, 1, 16, 1))
sketch2.addConstraint(Sketcher.Constraint("Coincident", 16, 2, 17, 1))
sketch2.addConstraint(Sketcher.Constraint("Coincident", 17, 2, 18, 2))
sketch2.addConstraint(Sketcher.Constraint("Coincident", 19, 1, 20, 1))
sketch2.addConstraint(Sketcher.Constraint("Coincident", 20, 2, 21, 1))
sketch2.addConstraint(Sketcher.Constraint("Coincident", 21, 2, 8, 1))
sketch2.addConstraint(Sketcher.Constraint("Coincident", 22, 2, 23, 2))
sketch2.addConstraint(Sketcher.Constraint("Coincident", 24, 1, 25, 1))
sketch2.addConstraint(Sketcher.Constraint("Coincident", 25, 2, 26, 2))
sketch2.addConstraint(Sketcher.Constraint("Coincident", 26, 1, 27, 1))
sketch2.addConstraint(Sketcher.Constraint("Coincident", 27, 2, 28, 2))
sketch2.addConstraint(Sketcher.Constraint("Coincident", 29, 1, 30, 1))
sketch2.addConstraint(Sketcher.Constraint("Coincident", 30, 2, 31, 1))
sketch2.addConstraint(Sketcher.Constraint("Coincident", 31, 2, 32, 2))
sketch2.addConstraint(Sketcher.Constraint("Coincident", 33, 1, 34, 1))
sketch2.addConstraint(Sketcher.Constraint("Coincident", 34, 2, 35, 1))
sketch2.addConstraint(Sketcher.Constraint("Coincident", 35, 2, 22, 1))
sketch2.addConstraint(Sketcher.Constraint("Horizontal", 8))
sketch2.addConstraint(Sketcher.Constraint("Vertical", 16))
sketch2.addConstraint(Sketcher.Constraint("Horizontal", 17))
sketch2.addConstraint(Sketcher.Constraint("Horizontal", 20))
sketch2.addConstraint(Sketcher.Constraint("Vertical", 21))
sketch2.addConstraint(Sketcher.Constraint("Horizontal", 22))
sketch2.addConstraint(Sketcher.Constraint("Vertical", 30))
sketch2.addConstraint(Sketcher.Constraint("Horizontal", 31))
sketch2.addConstraint(Sketcher.Constraint("Horizontal", 34))
sketch2.addConstraint(Sketcher.Constraint("Vertical", 35))
sketch2.addConstraint(Sketcher.Constraint("Vertical", 16, 2, 20, 2))
sketch2.addConstraint(Sketcher.Constraint("Vertical", 30, 2, 34, 2))
pocket1 = body.newObject("PartDesign::Pocket", "Pocket")
pocket1.Profile = sketch2
pocket1.setExpression("Length", "Params.pocket1_length")

doc.recompute()
